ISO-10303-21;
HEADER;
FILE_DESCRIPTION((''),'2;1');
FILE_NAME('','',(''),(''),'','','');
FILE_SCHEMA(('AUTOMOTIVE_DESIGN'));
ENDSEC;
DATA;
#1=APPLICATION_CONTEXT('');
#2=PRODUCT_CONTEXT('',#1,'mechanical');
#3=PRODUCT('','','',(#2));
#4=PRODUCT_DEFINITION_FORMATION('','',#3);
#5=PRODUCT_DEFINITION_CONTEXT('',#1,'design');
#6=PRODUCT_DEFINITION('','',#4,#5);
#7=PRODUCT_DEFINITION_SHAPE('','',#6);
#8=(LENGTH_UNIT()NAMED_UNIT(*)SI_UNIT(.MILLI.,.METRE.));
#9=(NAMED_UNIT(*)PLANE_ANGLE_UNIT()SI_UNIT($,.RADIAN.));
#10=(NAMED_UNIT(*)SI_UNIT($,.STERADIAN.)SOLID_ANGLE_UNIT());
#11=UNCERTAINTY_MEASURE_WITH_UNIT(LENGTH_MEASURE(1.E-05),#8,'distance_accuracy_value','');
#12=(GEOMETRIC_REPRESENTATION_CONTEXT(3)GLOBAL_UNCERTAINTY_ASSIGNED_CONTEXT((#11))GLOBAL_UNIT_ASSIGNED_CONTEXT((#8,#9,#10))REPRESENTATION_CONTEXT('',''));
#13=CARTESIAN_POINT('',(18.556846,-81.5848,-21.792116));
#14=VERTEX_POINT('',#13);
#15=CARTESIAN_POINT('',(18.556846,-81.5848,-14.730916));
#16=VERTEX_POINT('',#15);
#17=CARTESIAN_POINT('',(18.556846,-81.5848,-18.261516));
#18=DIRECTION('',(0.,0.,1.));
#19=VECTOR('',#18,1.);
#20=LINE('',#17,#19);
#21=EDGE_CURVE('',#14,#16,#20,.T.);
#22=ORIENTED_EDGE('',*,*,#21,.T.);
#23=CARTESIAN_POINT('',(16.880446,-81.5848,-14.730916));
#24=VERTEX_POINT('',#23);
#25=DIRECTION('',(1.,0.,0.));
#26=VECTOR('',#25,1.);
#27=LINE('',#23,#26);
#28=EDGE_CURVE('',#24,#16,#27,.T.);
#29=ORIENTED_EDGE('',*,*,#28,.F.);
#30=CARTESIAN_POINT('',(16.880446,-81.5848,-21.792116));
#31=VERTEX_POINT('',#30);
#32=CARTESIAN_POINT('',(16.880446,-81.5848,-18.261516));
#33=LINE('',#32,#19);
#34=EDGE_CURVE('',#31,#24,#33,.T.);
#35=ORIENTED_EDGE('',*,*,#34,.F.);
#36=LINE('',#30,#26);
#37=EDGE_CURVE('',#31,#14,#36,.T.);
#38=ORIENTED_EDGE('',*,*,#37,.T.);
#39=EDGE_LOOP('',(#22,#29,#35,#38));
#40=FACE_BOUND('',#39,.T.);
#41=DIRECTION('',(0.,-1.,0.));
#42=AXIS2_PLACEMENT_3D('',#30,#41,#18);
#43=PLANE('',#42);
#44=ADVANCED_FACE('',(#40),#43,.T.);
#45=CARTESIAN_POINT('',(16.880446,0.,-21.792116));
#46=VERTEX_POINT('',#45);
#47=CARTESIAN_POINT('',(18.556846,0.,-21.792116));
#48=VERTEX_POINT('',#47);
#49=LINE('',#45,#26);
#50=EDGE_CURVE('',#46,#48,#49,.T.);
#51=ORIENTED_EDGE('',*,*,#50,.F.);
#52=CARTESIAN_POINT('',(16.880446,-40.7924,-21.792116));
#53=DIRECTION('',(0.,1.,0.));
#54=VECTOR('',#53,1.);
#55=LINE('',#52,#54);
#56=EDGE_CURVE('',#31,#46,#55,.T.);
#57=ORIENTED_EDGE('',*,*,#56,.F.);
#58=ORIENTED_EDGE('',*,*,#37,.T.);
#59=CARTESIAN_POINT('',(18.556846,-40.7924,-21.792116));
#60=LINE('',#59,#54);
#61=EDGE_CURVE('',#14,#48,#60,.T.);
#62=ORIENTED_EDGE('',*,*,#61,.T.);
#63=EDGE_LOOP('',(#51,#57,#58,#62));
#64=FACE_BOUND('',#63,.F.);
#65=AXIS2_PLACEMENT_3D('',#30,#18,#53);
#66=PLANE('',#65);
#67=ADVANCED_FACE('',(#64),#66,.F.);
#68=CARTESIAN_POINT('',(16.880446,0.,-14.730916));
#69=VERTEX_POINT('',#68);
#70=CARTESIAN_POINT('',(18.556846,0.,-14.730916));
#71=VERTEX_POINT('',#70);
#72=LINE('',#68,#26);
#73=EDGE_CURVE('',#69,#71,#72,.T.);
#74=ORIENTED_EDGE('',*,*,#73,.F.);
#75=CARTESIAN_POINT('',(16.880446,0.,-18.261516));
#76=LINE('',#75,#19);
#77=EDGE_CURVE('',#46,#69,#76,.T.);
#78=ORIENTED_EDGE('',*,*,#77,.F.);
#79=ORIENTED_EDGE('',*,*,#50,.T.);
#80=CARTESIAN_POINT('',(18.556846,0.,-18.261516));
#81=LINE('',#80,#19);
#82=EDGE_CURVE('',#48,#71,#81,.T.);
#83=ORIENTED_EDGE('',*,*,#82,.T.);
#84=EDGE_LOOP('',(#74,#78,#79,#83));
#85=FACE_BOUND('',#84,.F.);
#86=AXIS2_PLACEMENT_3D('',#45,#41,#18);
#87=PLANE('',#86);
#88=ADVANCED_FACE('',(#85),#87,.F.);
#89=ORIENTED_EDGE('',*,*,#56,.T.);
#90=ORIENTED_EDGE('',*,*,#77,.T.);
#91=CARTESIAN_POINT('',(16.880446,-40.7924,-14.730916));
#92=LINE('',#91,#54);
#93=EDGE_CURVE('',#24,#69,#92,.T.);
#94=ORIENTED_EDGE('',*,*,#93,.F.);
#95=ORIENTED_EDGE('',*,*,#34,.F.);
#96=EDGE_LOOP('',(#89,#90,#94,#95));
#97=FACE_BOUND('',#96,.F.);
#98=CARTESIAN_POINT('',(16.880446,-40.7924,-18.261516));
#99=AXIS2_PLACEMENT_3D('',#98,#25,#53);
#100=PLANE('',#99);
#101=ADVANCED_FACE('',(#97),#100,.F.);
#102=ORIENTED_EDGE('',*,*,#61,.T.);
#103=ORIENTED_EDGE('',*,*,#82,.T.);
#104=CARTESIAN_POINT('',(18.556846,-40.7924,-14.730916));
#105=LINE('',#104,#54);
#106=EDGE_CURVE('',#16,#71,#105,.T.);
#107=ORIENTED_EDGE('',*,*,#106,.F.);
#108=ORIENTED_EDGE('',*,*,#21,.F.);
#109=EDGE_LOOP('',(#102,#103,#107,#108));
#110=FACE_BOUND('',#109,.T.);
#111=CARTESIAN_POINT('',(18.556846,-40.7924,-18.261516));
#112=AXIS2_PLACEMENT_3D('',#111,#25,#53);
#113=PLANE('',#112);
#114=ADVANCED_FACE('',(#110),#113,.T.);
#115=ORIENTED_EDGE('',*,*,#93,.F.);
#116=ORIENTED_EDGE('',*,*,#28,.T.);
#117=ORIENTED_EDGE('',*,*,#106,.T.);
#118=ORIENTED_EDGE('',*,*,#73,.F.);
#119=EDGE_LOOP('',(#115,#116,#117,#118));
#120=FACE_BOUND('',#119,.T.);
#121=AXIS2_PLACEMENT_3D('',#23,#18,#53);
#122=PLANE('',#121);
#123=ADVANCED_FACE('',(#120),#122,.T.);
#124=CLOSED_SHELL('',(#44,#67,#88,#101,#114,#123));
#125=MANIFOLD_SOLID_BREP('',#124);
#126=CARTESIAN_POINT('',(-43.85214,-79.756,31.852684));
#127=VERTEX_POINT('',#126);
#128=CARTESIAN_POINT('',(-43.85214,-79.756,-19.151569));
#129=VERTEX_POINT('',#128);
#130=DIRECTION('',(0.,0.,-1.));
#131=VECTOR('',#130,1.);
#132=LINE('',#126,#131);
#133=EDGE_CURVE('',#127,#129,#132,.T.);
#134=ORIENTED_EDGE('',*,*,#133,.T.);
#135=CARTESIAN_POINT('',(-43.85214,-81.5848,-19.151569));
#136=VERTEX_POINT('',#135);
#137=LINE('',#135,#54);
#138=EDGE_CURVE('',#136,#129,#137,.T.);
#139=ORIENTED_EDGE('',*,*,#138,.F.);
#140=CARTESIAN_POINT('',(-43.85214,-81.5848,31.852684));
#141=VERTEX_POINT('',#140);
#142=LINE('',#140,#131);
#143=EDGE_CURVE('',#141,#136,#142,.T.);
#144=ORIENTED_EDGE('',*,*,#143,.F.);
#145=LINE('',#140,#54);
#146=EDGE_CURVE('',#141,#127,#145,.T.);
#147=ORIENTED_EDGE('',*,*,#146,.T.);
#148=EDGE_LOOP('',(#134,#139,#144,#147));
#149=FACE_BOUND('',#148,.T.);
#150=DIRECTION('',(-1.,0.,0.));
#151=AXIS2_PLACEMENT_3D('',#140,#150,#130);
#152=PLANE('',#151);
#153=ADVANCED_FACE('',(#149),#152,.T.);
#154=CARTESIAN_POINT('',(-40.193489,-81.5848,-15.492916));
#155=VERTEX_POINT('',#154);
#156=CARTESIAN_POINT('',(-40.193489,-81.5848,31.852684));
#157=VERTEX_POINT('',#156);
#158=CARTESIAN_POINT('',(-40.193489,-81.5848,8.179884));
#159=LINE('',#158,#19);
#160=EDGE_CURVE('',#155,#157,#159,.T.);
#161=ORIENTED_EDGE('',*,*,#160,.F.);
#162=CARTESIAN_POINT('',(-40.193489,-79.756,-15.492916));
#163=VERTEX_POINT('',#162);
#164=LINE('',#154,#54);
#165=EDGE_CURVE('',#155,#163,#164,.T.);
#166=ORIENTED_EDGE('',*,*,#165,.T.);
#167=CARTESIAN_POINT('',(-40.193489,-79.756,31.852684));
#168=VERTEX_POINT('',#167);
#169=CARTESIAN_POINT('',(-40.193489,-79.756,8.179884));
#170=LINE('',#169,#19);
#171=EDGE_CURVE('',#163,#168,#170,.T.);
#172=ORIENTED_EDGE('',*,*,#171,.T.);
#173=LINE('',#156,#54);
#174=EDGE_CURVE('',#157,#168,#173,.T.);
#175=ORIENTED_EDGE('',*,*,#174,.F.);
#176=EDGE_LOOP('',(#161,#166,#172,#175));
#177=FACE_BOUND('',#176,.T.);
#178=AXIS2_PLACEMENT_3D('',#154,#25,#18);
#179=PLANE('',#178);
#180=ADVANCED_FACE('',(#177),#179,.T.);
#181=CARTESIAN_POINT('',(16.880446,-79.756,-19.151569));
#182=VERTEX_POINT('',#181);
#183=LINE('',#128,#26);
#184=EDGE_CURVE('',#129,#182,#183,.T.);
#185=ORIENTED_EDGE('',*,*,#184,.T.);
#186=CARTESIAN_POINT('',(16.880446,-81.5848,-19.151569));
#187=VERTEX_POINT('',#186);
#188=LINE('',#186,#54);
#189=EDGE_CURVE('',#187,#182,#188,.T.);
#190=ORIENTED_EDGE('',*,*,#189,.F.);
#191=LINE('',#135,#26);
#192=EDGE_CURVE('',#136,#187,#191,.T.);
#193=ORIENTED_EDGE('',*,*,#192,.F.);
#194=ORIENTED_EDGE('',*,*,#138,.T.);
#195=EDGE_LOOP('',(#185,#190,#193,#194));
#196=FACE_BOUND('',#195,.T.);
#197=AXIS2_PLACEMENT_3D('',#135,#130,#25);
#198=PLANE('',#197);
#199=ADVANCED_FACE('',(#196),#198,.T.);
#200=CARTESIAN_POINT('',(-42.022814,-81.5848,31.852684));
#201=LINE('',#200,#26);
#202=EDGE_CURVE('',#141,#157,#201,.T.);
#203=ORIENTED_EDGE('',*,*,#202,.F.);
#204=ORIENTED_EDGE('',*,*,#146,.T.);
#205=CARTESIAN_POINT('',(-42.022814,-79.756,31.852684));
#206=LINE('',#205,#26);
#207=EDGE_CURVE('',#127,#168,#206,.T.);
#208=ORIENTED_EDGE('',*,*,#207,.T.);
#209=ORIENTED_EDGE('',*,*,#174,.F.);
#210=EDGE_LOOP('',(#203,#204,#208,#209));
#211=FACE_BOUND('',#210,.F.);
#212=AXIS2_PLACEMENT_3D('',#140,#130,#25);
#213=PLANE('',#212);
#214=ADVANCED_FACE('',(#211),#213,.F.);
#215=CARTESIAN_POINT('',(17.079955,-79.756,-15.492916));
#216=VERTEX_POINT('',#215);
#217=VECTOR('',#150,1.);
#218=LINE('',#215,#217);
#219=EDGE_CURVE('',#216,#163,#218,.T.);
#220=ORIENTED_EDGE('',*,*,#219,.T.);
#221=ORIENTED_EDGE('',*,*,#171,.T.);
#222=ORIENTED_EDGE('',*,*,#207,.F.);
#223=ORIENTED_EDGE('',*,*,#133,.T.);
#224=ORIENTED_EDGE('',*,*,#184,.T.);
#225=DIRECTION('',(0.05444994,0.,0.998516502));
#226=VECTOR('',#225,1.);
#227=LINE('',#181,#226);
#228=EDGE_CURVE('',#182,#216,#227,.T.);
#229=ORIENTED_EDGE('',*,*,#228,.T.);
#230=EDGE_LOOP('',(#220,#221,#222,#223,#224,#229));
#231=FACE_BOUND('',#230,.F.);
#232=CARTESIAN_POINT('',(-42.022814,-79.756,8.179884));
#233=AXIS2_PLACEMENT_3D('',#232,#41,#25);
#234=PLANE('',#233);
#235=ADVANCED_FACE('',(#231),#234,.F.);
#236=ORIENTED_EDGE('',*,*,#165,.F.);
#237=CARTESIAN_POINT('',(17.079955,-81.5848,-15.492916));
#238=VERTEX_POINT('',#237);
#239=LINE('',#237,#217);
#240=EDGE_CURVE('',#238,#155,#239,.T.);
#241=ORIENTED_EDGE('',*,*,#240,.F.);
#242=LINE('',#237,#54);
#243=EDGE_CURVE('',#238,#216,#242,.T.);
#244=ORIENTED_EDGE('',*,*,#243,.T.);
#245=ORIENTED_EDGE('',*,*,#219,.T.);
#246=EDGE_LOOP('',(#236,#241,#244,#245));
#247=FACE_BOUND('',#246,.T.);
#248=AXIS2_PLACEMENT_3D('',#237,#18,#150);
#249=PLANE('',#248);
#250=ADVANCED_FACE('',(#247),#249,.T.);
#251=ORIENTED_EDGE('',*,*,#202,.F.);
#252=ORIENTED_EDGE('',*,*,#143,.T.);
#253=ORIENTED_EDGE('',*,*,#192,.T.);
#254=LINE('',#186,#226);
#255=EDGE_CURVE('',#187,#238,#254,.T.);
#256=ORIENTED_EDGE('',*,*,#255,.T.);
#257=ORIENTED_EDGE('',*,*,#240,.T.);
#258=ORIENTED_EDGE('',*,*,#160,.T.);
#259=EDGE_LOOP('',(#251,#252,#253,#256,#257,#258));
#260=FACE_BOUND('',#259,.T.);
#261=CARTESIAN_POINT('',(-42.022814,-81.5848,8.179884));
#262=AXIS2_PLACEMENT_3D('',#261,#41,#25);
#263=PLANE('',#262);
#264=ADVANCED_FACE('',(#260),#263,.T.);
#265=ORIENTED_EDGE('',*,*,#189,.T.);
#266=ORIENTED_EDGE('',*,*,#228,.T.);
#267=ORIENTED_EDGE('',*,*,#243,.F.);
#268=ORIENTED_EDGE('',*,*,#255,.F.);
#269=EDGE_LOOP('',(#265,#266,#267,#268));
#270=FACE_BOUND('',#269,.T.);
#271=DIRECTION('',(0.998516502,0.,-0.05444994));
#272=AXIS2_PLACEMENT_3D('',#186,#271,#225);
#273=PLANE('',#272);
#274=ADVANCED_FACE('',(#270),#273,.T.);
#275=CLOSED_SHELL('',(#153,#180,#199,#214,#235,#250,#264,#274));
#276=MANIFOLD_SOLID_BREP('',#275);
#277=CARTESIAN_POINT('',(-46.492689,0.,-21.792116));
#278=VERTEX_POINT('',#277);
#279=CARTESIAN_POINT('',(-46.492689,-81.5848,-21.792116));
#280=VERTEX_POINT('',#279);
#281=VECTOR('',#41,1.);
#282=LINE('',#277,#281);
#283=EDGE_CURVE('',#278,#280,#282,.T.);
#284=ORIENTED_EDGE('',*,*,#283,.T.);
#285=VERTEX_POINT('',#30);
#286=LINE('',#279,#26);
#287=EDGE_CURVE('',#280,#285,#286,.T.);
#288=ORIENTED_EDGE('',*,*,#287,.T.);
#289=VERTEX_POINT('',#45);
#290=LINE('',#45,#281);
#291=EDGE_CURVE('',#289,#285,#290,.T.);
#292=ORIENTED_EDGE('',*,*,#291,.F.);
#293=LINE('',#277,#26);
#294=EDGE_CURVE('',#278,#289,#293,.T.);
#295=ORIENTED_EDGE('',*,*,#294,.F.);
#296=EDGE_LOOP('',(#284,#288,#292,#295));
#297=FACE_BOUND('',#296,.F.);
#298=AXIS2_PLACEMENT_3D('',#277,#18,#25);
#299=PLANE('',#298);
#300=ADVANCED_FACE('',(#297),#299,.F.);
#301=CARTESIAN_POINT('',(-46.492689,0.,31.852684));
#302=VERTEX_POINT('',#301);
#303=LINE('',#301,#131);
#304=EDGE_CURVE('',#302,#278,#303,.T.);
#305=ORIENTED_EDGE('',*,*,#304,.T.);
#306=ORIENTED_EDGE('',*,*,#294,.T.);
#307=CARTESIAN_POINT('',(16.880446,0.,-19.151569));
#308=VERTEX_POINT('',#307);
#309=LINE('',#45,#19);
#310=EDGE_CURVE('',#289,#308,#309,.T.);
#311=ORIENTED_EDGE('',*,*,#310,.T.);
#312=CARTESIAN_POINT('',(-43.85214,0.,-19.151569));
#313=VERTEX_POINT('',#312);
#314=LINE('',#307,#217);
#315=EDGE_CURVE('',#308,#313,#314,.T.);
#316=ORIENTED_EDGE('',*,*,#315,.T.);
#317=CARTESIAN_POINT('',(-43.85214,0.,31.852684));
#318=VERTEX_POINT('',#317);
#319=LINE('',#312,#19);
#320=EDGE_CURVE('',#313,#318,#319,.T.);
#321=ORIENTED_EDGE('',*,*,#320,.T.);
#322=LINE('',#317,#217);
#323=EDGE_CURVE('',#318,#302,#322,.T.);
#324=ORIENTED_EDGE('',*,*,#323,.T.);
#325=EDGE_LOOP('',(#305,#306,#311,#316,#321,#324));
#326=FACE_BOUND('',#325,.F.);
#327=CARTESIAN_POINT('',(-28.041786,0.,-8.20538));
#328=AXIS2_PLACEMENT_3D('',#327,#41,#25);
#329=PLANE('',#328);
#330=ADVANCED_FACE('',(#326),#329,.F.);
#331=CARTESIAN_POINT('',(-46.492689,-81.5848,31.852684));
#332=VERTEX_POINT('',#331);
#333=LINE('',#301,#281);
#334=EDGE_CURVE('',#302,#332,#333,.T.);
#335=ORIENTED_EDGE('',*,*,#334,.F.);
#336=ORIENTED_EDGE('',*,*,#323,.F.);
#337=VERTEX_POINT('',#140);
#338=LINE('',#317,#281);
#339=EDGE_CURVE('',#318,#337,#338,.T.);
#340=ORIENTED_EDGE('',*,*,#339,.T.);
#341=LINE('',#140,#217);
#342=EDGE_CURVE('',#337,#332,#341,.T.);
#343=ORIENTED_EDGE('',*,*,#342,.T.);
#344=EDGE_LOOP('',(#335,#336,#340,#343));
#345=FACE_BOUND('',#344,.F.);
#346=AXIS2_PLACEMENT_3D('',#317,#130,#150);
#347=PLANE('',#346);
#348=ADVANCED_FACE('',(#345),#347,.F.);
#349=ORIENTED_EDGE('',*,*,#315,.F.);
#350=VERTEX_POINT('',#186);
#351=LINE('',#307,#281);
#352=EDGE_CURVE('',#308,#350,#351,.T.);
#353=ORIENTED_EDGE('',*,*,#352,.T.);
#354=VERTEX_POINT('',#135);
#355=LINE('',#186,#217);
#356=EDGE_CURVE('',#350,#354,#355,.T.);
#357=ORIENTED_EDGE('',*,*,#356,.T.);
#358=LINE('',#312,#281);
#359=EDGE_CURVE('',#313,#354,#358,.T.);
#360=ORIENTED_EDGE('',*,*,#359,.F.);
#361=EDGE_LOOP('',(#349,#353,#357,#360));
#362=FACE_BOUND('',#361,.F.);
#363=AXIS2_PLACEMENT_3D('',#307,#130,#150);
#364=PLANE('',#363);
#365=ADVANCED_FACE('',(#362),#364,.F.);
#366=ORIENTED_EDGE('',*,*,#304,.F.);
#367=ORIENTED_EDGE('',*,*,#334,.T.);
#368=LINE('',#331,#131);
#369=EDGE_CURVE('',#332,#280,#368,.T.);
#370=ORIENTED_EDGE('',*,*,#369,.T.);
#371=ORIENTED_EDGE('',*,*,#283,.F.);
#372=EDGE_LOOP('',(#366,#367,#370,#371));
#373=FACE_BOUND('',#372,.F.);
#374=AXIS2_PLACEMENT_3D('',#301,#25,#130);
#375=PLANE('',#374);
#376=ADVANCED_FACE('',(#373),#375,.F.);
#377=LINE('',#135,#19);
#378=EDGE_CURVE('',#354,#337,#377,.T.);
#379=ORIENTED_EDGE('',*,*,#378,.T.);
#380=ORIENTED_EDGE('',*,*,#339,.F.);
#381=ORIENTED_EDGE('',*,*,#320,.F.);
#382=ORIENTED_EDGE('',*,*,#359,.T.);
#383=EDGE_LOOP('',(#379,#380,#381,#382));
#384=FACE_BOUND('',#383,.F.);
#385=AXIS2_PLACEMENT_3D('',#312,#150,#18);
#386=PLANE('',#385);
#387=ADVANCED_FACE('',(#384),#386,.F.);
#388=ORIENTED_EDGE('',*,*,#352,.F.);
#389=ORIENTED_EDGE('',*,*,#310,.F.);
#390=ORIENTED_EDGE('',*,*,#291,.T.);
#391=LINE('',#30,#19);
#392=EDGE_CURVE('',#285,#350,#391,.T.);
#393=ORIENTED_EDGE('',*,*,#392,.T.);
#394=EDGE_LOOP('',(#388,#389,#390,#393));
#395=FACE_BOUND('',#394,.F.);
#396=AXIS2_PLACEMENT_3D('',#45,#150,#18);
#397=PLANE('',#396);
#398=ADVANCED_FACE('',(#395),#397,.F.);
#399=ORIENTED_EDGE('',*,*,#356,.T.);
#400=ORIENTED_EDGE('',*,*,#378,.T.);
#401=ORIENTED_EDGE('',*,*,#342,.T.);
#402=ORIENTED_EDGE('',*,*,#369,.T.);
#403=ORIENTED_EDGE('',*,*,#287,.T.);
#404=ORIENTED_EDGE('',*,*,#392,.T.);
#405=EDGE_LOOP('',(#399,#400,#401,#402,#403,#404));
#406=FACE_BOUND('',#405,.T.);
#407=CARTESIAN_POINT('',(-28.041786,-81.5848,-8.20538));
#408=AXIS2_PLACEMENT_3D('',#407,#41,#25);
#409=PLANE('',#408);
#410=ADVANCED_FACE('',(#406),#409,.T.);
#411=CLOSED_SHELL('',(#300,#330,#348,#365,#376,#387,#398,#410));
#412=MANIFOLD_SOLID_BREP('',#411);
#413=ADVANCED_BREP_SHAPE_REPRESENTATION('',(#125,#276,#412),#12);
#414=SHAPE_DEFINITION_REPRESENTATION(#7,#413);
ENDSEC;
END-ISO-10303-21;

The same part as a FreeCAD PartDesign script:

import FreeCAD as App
import Part
import Sketcher

V = App.Vector
Q = App.Units.Quantity

doc = App.newDocument("Part")
body = doc.addObject("PartDesign::Body", "Body")

sketch1 = doc.addObject("Sketcher::SketchObject", "Sketch")
body.addObject(sketch1)
sketch1.AttachmentSupport = (doc.XZ_Plane, [""])
sketch1.MapMode = "FlatFace"
sketch1.addGeometry([
    Part.LineSegment(V(-43.9, 31.9, 0), V(-46.5, 31.9, 0)),
    Part.LineSegment(V(-46.5, 31.9, 0), V(-46.5, -21.8, 0)),
    Part.LineSegment(V(-46.5, -21.8, 0), V(16.9, -21.8, 0)),
    Part.LineSegment(V(16.9, -21.8, 0), V(16.9, -19.2, 0)),
    Part.LineSegment(V(16.9, -19.2, 0), V(-43.9, -19.2, 0)),
    Part.LineSegment(V(-43.9, -19.2, 0), V(-43.9, 31.9, 0)),
], False)
sketch1.addConstraint([
    Sketcher.Constraint("Coincident", 0, 2, 1, 1),
    Sketcher.Constraint("Coincident", 1, 2, 2, 1),
    Sketcher.Constraint("Coincident", 2, 2, 3, 1),
    Sketcher.Constraint("Coincident", 3, 2, 4, 1),
    Sketcher.Constraint("Coincident", 4, 2, 5, 1),
    Sketcher.Constraint("Coincident", 5, 2, 0, 1),
    Sketcher.Constraint("Horizontal", 0),
    Sketcher.Constraint("Vertical", 1),
    Sketcher.Constraint("Horizontal", 2),
    Sketcher.Constraint("Vertical", 3),
    Sketcher.Constraint("Horizontal", 4),
    Sketcher.Constraint("Vertical", 5),
    Sketcher.Constraint("Equal", 0, 3),
    Sketcher.Constraint("DistanceY", 1, 2, 1, 1, Q("2.112 in")),
    Sketcher.Constraint("DistanceX", 0, 2, 0, 1, Q("2.640549 mm")),
    Sketcher.Constraint("DistanceX", 2, 1, 2, 2, Q("63.373134 mm")),
    Sketcher.Constraint("DistanceX", 0, 2, -1, 1, Q("46.492689 mm")),
    Sketcher.Constraint("DistanceY", 3, 2, -1, 1, Q("19.151569 mm")),
])
pad1 = doc.addObject("PartDesign::Pad", "Pad")
body.addObject(pad1)
pad1.Profile = sketch1
pad1.Length = Q("3.212 in")
body2 = doc.addObject("PartDesign::Body", "Body001")

sketch2 = doc.addObject("Sketcher::SketchObject", "Sketch001")
body2.addObject(sketch2)
sketch2.AttachmentSupport = (doc.getObject("XZ_Plane001"), [""])
sketch2.MapMode = "FlatFace"
sketch2.AttachmentOffset = App.Placement(V(0, 0, 3.212 * 25.4), App.Rotation())
sketch2.addGeometry([
    Part.LineSegment(V(-43.9, 31.9, 0), V(-43.9, -19.2, 0)),
    Part.LineSegment(V(-43.9, -19.2, 0), V(16.9, -19.2, 0)),
    Part.LineSegment(V(16.9, -19.2, 0), V(17.1, -15.5, 0)),
    Part.LineSegment(V(17.1, -15.5, 0), V(-40.2, -15.5, 0)),
    Part.LineSegment(V(-40.2, -15.5, 0), V(-40.2, 31.9, 0)),
    Part.LineSegment(V(-40.2, 31.9, 0), V(-43.9, 31.9, 0)),
], False)
sketch2.addConstraint([
    Sketcher.Constraint("Coincident", 0, 2, 1, 1),
    Sketcher.Constraint("Coincident", 1, 2, 2, 1),
    Sketcher.Constraint("Coincident", 2, 2, 3, 1),
    Sketcher.Constraint("Coincident", 3, 2, 4, 1),
    Sketcher.Constraint("Coincident", 4, 2, 5, 1),
    Sketcher.Constraint("Coincident", 5, 2, 0, 1),
    Sketcher.Constraint("Vertical", 0),
    Sketcher.Constraint("Horizontal", 1),
    Sketcher.Constraint("Horizontal", 3),
    Sketcher.Constraint("Vertical", 4),
    Sketcher.Constraint("Horizontal", 5),
    Sketcher.Constraint("DistanceY", 4, 1, 4, 2, Q("1.864 in")),
    Sketcher.Constraint("DistanceX", 5, 2, 5, 1, Q("3.658651 mm")),
    Sketcher.Constraint("Distance", 2, Q("3.664088 mm")),
    Sketcher.Constraint("DistanceX", 1, 1, 1, 2, Q("60.732586 mm")),
    Sketcher.Constraint("DistanceX", 3, 2, 3, 1, Q("57.273444 mm")),
    Sketcher.Constraint("DistanceX", 0, 2, -1, 1, Q("43.85214 mm")),
    Sketcher.Constraint("DistanceY", 0, 2, -1, 1, Q("19.151569 mm")),
])
pad2 = doc.addObject("PartDesign::Pad", "Pad001")
body2.addObject(pad2)
pad2.Profile = sketch2
pad2.Length = Q("0.072 in")
pad2.Reversed = True
body3 = doc.addObject("PartDesign::Body", "Body002")

sketch3 = doc.addObject("Sketcher::SketchObject", "Sketch002")
body3.addObject(sketch3)
sketch3.AttachmentSupport = (doc.getObject("YZ_Plane002"), [""])
sketch3.MapMode = "FlatFace"
sketch3.AttachmentOffset = App.Placement(V(0, 0, 16.880446), App.Rotation())
sketch3.addGeometry([
    Part.LineSegment(V(-82, -15, 0), V(-82, -22, 0)),
    Part.LineSegment(V(-82, -22, 0), V(0, -22, 0)),
    Part.LineSegment(V(0, -22, 0), V(0, -15, 0)),
    Part.LineSegment(V(0, -15, 0), V(-82, -15, 0)),
], False)
sketch3.addConstraint([
    Sketcher.Constraint("Coincident", 0, 2, 1, 1),
    Sketcher.Constraint("Coincident", 1, 2, 2, 1),
    Sketcher.Constraint("Coincident", 2, 2, 3, 1),
    Sketcher.Constraint("Coincident", 3, 2, 0, 1),
    Sketcher.Constraint("Vertical", 0),
    Sketcher.Constraint("Horizontal", 1),
    Sketcher.Constraint("Vertical", 2),
    Sketcher.Constraint("Horizontal", 3),
    Sketcher.Constraint("PointOnObject", 1, 2, -2),
    Sketcher.Constraint("DistanceX", 1, 1, 1, 2, Q("3.212 in")),
    Sketcher.Constraint("DistanceY", 0, 2, 0, 1, Q("0.278 in")),
    Sketcher.Constraint("DistanceY", 0, 2, -1, 1, Q("21.792116 mm")),
])
pad3 = doc.addObject("PartDesign::Pad", "Pad002")
body3.addObject(pad3)
pad3.Profile = sketch3
pad3.Length = Q("0.066 in")

doc.recompute()
